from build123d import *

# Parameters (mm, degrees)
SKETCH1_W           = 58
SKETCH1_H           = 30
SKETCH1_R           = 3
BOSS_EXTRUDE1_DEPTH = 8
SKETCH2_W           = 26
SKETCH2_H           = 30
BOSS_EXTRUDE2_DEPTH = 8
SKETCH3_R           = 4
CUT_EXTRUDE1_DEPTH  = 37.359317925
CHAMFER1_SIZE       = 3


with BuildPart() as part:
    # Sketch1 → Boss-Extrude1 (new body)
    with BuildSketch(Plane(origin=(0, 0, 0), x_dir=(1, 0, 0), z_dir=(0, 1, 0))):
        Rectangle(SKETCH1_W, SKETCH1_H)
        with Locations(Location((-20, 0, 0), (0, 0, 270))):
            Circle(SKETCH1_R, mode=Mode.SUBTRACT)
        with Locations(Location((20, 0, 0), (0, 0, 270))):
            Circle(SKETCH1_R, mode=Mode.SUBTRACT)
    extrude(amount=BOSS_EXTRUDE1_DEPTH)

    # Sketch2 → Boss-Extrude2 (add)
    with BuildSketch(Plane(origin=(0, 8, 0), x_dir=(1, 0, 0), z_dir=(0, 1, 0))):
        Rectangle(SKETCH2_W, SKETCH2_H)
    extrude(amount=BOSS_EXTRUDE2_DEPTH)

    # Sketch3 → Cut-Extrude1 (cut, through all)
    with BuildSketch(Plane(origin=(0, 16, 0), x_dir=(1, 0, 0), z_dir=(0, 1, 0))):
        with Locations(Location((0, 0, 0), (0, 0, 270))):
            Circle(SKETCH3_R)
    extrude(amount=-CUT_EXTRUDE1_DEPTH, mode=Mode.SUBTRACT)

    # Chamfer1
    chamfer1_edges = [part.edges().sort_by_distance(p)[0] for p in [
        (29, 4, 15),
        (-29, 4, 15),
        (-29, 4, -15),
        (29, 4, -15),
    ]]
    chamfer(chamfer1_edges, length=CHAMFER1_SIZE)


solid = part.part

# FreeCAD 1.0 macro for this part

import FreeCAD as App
import Part
import Sketcher


def edges_at(feature, points):
    """Names of the edges that pass closest to the given points."""
    edges = feature.Shape.Edges
    near = lambda p: min(range(len(edges)), key=lambda i: edges[i].distToShape(Part.Vertex(*p))[0])
    return sorted({f"Edge{near(p) + 1}" for p in points})


def add_polygon(sketch, points):
    """Adds a closed chain of lines whose ends are joined by coincident constraints."""
    first, n = sketch.GeometryCount, len(points)
    for a, b in zip(points, points[1:] + points[:1]):
        sketch.addGeometry(Part.LineSegment(App.Vector(*a, 0), App.Vector(*b, 0)), False)
    for i in range(n):
        sketch.addConstraint(Sketcher.Constraint("Coincident", first + i, 2, first + (i + 1) % n, 1))

doc = App.newDocument("Part")
body = doc.addObject("PartDesign::Body", "Body")

# Sketch on XZ plane
sketch1 = body.newObject("Sketcher::SketchObject", "Sketch")
sketch1.AttachmentSupport = (doc.getObject("XZ_Plane"), [""])
sketch1.MapMode = "FlatFace"
add_polygon(sketch1, [(-29, -15), (-29, 15), (29, 15), (29, -15)])  # lines 0-3
sketch1.addGeometry(Part.Circle(App.Vector(-20, 0, 0), App.Vector(0, 0, 1), 3), False)  # 4
sketch1.addGeometry(Part.Circle(App.Vector(20, 0, 0), App.Vector(0, 0, 1), 3), False)  # 5
sketch1.addConstraint([
    Sketcher.Constraint("Vertical", 0),
    Sketcher.Constraint("Horizontal", 1),
    Sketcher.Constraint("Vertical", 2),
    Sketcher.Constraint("Horizontal", 3),
    Sketcher.Constraint("Equal", 4, 5),
    Sketcher.Constraint("Symmetric", 4, 3, 5, 3, -1, 1),
    Sketcher.Constraint("Symmetric", 0, 2, 2, 2, -1, 1),
    Sketcher.Constraint("PointOnObject", 4, 3, -1),
    Sketcher.Constraint("Diameter", 4, 6.0),
    Sketcher.Constraint("DistanceX", 1, 1, 1, 2, 58.0),
    Sketcher.Constraint("DistanceY", 0, 1, 0, 2, 30.0),
    Sketcher.Constraint("DistanceX", 4, 3, -1, 1, 20.0),
])
pad1 = body.newObject("PartDesign::Pad", "Pad")
pad1.Profile = sketch1
pad1.Length = 8
pad1.Reversed = True

# Sketch on XZ plane
sketch2 = body.newObject("Sketcher::SketchObject", "Sketch001")
sketch2.AttachmentSupport = (doc.getObject("XZ_Plane"), [""])
sketch2.MapMode = "FlatFace"
sketch2.AttachmentOffset = App.Placement(App.Vector(0, 0, -8), App.Rotation())
add_polygon(sketch2, [(-13, -15), (-13, 15), (13, 15), (13, -15)])  # lines 0-3
sketch2.addConstraint([
    Sketcher.Constraint("Vertical", 0),
    Sketcher.Constraint("Horizontal", 1),
    Sketcher.Constraint("Vertical", 2),
    Sketcher.Constraint("Horizontal", 3),
    Sketcher.Constraint("Symmetric", 0, 2, 2, 2, -1, 1),
    Sketcher.Constraint("DistanceX", 1, 1, 1, 2, 26.0),
    Sketcher.Constraint("DistanceY", 0, 1, 0, 2, 30.0),
])
pad2 = body.newObject("PartDesign::Pad", "Pad001")
pad2.Profile = sketch2
pad2.Length = 8
pad2.Reversed = True

# Sketch on XZ plane
sketch3 = body.newObject("Sketcher::SketchObject", "Sketch002")
sketch3.AttachmentSupport = (doc.getObject("XZ_Plane"), [""])
sketch3.MapMode = "FlatFace"
sketch3.AttachmentOffset = App.Placement(App.Vector(0, 0, -16), App.Rotation())
sketch3.addGeometry(Part.Circle(App.Vector(0, 0, 0), App.Vector(0, 0, 1), 4), False)
sketch3.addConstraint([
    Sketcher.Constraint("Coincident", 0, 3, -1, 1),
    Sketcher.Constraint("Diameter", 0, 8.0),
])
pocket1 = body.newObject("PartDesign::Pocket", "Pocket")
pocket1.Profile = sketch3
pocket1.Type = "ThroughAll"
pocket1.Reversed = True
doc.recompute()

chamfer = body.newObject("PartDesign::Chamfer", "Chamfer")
chamfer.Base = (pocket1, edges_at(pocket1, [
    (29, 4, 15),
    (-29, 4, 15),
    (-29, 4, -15),
    (29, 4, -15),
]))
chamfer.Size = 3

doc.recompute()
